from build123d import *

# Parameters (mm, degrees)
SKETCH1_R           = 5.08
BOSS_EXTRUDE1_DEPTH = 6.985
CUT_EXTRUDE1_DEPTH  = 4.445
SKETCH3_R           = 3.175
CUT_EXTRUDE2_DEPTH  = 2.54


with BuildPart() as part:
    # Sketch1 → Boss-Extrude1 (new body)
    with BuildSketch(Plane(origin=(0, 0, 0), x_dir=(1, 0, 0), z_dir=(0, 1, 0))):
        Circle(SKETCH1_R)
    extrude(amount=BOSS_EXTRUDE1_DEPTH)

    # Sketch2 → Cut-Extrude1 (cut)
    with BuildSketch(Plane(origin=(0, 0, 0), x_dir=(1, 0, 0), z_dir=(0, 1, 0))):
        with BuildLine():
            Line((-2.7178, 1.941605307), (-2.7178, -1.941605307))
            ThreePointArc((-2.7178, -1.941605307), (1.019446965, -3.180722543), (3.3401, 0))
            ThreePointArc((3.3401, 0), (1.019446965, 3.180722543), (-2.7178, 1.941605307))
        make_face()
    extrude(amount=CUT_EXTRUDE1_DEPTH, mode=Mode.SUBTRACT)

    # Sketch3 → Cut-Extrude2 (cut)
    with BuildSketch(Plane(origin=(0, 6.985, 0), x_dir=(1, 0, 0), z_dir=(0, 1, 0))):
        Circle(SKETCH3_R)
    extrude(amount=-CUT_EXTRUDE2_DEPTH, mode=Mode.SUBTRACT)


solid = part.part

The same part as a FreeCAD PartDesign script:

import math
import FreeCAD as App
import Part
import Sketcher

V = App.Vector
Q = App.Units.Quantity

doc = App.newDocument("Part")
params = doc.addObject("Spreadsheet::Sheet", "Params")
for row, (alias, value) in enumerate([
    ("sketch1_diameter", "0.4 in"),
    ("pad1_length", "0.275 in"),
    ("pocket1_length", "0.175 in"),
    ("sketch3_diameter", "0.25 in"),
    ("pocket2_length", "0.1 in"),
], start=1):
    params.set(f"A{row}", alias)
    params.set(f"B{row}", "=" + value)
    params.setAlias(f"B{row}", alias)

body = doc.addObject("PartDesign::Body", "Body")

sketch1 = doc.addObject("Sketcher::SketchObject", "Sketch")
body.addObject(sketch1)
sketch1.AttachmentSupport = (doc.XZ_Plane, [""])
sketch1.MapMode = "FlatFace"
sketch1.addGeometry(Part.Circle(V(0, 0, 0), V(0, 0, 1), 5), False)
sketch1.addConstraint([
    Sketcher.Constraint("Coincident", 0, 3, -1, 1),
    Sketcher.Constraint("Diameter", 0, Q("0.4 in")),
])
sketch1.setExpression("Constraints[1]", "Params.sketch1_diameter")
pad1 = doc.addObject("PartDesign::Pad", "Pad")
body.addObject(pad1)
pad1.Profile = sketch1
pad1.setExpression("Length", "Params.pad1_length")
pad1.Reversed = True

sketch2 = doc.addObject("Sketcher::SketchObject", "Sketch001")
body.addObject(sketch2)
sketch2.AttachmentSupport = (doc.XZ_Plane, [""])
sketch2.MapMode = "FlatFace"
sketch2.addGeometry([
    Part.LineSegment(V(-2.7, -1.9, 0), V(-2.7, 1.9, 0)),
    Part.ArcOfCircle(Part.Circle(V(0, 0, 0), V(0, 0, 1), 3.3), math.radians(0), math.radians(144)),
    Part.ArcOfCircle(Part.Circle(V(0, 0, 0), V(0, 0, 1), 3.3), math.radians(-144), math.radians(0)),
], False)
sketch2.addConstraint([
    Sketcher.Constraint("Coincident", 0, 2, 1, 2),
    Sketcher.Constraint("Tangent", 1, 1, 2, 2),
    Sketcher.Constraint("Coincident", 2, 1, 0, 1),
    Sketcher.Constraint("Vertical", 0),
    Sketcher.Constraint("Coincident", 1, 3, -1, 1),
    Sketcher.Constraint("Equal", 1, 2),
    Sketcher.Constraint("PointOnObject", 1, 1, -1),
    Sketcher.Constraint("Radius", 1, Q("0.1315 in")),
    Sketcher.Constraint("DistanceX", 0, 2, -1, 1, Q("0.107 in")),
])
pocket1 = doc.addObject("PartDesign::Pocket", "Pocket")
body.addObject(pocket1)
pocket1.Profile = sketch2
pocket1.setExpression("Length", "Params.pocket1_length")

sketch3 = doc.addObject("Sketcher::SketchObject", "Sketch002")
body.addObject(sketch3)
sketch3.AttachmentSupport = (doc.XZ_Plane, [""])
sketch3.MapMode = "FlatFace"
sketch3.AttachmentOffset = App.Placement(V(0, 0, -0.275 * 25.4), App.Rotation())
sketch3.addGeometry(Part.Circle(V(0, 0, 0), V(0, 0, 1), 3.2), False)
sketch3.addConstraint([
    Sketcher.Constraint("Coincident", 0, 3, -1, 1),
    Sketcher.Constraint("Diameter", 0, Q("0.25 in")),
])
sketch3.setExpression("Constraints[1]", "Params.sketch3_diameter")
pocket2 = doc.addObject("PartDesign::Pocket", "Pocket001")
body.addObject(pocket2)
pocket2.Profile = sketch3
pocket2.setExpression("Length", "Params.pocket2_length")
pocket2.Reversed = True

doc.recompute()
